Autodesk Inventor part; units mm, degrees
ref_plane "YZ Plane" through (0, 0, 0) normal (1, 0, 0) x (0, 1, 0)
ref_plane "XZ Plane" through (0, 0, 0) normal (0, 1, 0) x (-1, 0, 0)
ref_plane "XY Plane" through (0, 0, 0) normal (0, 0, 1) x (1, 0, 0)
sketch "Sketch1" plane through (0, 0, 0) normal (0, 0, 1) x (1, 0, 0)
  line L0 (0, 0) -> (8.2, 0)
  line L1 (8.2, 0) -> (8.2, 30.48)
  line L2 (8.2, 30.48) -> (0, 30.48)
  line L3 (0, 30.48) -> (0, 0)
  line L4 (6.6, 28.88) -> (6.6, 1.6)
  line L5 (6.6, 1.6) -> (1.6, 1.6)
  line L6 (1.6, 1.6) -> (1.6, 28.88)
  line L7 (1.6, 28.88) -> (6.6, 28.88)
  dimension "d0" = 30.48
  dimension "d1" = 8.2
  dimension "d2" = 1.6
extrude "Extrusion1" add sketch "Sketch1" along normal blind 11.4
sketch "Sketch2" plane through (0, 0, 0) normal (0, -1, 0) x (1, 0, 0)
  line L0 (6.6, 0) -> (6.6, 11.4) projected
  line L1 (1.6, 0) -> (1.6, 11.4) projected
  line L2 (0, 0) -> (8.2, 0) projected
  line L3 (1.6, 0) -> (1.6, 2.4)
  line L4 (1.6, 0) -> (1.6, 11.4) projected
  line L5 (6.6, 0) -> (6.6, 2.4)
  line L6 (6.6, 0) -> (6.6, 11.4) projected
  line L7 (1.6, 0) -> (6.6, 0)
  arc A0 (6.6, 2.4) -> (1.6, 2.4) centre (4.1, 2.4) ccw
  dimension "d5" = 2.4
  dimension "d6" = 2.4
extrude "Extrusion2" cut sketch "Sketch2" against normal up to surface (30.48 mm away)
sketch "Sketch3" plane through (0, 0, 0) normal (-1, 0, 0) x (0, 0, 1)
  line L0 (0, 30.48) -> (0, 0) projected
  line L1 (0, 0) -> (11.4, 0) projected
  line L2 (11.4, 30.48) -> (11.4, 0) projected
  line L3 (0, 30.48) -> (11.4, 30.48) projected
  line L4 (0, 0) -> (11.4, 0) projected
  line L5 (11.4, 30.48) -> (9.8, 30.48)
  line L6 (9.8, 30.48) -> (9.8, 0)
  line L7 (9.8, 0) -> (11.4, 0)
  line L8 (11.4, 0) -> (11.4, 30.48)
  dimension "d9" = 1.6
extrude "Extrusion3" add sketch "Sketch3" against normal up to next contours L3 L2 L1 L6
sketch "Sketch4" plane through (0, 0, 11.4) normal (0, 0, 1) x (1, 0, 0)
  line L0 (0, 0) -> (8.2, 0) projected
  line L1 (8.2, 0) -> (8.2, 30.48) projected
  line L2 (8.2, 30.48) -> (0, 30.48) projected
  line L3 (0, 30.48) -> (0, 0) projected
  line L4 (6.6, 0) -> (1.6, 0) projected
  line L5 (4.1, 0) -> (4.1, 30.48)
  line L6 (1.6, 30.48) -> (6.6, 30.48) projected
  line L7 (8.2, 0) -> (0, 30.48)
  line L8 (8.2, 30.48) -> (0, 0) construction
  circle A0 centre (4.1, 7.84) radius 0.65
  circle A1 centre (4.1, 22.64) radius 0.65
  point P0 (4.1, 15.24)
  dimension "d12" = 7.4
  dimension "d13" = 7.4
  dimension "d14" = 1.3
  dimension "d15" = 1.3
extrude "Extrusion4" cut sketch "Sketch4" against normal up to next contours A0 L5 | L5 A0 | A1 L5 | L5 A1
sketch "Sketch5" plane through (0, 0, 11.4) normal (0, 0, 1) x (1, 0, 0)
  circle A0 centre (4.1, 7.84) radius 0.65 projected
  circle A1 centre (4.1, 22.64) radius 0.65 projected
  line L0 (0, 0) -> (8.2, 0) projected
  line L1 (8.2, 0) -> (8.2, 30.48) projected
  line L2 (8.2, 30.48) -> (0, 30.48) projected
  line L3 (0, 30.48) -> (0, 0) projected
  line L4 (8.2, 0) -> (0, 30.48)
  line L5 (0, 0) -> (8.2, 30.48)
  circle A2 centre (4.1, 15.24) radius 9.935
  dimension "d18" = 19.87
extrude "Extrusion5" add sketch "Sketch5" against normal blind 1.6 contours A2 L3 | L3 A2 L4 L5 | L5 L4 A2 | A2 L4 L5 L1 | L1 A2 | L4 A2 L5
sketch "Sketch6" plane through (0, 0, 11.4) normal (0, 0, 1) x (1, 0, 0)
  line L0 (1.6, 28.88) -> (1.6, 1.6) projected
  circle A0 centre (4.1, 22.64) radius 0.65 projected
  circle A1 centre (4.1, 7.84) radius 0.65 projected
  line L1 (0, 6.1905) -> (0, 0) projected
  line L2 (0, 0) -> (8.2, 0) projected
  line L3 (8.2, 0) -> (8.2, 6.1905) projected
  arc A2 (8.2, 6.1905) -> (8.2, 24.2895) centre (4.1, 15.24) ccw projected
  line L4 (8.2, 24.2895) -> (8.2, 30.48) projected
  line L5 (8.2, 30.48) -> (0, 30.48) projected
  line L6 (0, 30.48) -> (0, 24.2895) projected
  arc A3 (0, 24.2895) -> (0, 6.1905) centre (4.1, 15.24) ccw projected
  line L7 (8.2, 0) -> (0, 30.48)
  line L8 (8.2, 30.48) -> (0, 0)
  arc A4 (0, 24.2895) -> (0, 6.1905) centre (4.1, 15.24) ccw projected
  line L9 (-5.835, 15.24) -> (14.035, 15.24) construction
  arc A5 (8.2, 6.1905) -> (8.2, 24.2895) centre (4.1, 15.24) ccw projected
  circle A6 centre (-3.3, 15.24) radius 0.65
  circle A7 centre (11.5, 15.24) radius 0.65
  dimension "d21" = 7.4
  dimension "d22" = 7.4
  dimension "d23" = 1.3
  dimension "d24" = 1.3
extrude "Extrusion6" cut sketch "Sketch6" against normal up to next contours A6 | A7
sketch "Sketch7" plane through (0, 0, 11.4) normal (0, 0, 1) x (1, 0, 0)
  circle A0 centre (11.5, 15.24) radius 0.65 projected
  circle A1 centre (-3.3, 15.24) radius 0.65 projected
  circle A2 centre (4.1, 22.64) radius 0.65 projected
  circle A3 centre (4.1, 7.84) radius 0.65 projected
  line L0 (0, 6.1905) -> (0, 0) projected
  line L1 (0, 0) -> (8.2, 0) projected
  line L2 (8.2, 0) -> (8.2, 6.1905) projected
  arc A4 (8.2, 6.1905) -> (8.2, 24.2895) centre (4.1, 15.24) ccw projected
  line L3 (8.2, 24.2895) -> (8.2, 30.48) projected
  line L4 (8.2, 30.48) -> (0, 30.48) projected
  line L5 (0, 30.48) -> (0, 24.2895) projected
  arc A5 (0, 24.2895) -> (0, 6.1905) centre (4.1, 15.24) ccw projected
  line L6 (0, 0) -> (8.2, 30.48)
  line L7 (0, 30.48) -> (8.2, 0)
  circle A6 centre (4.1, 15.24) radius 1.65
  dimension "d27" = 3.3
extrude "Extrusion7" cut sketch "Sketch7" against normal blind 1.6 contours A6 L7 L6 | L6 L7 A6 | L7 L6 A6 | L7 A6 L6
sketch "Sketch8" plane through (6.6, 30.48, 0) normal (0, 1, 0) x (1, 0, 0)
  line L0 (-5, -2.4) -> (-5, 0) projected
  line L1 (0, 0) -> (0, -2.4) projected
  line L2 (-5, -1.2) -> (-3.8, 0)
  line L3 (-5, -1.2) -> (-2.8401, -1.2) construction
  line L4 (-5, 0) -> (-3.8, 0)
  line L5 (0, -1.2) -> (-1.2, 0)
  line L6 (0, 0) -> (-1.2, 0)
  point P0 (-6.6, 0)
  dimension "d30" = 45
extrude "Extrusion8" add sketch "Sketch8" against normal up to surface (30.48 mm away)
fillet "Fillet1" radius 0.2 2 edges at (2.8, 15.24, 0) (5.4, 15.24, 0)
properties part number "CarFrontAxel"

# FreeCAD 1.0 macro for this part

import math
import FreeCAD as App
import Part
import Sketcher
from FreeCAD import Vector


def edges_at(feature, points):
    """Names of the edges that pass closest to the given points."""
    edges = feature.Shape.Edges
    near = lambda p: min(range(len(edges)), key=lambda i: edges[i].distToShape(Part.Vertex(*p))[0])
    return sorted({f"Edge{near(p) + 1}" for p in points})

doc = App.newDocument("Part")
body = doc.addObject("PartDesign::Body", "Body")

# Sketch on XY plane
sketch1 = body.newObject("Sketcher::SketchObject", "Sketch")
sketch1.AttachmentSupport = (doc.getObject("XY_Plane"), [""])
sketch1.MapMode = "FlatFace"
sketch1.addGeometry(Part.LineSegment(Vector(0, 30, 0), Vector(0, 0, 0)), False)
sketch1.addGeometry(Part.LineSegment(Vector(0, 0, 0), Vector(8, 0, 0)), False)
sketch1.addGeometry(Part.LineSegment(Vector(8, 0, 0), Vector(8, 30, 0)), False)
sketch1.addGeometry(Part.LineSegment(Vector(8, 30, 0), Vector(0, 30, 0)), False)
sketch1.addGeometry(Part.LineSegment(Vector(2, 29, 0), Vector(7, 29, 0)), False)
sketch1.addGeometry(Part.LineSegment(Vector(7, 29, 0), Vector(7, 2, 0)), False)
sketch1.addGeometry(Part.LineSegment(Vector(7, 2, 0), Vector(2, 2, 0)), False)
sketch1.addGeometry(Part.LineSegment(Vector(2, 2, 0), Vector(2, 29, 0)), False)
sketch1.addConstraint(Sketcher.Constraint("Coincident", 0, 2, 1, 1))
sketch1.addConstraint(Sketcher.Constraint("Coincident", 1, 2, 2, 1))
sketch1.addConstraint(Sketcher.Constraint("Coincident", 2, 2, 3, 1))
sketch1.addConstraint(Sketcher.Constraint("Coincident", 3, 2, 0, 1))
sketch1.addConstraint(Sketcher.Constraint("Coincident", 4, 2, 5, 1))
sketch1.addConstraint(Sketcher.Constraint("Coincident", 5, 2, 6, 1))
sketch1.addConstraint(Sketcher.Constraint("Coincident", 6, 2, 7, 1))
sketch1.addConstraint(Sketcher.Constraint("Coincident", 7, 2, 4, 1))
sketch1.addConstraint(Sketcher.Constraint("Vertical", 0))
sketch1.addConstraint(Sketcher.Constraint("Horizontal", 1))
sketch1.addConstraint(Sketcher.Constraint("Vertical", 2))
sketch1.addConstraint(Sketcher.Constraint("Horizontal", 3))
sketch1.addConstraint(Sketcher.Constraint("Horizontal", 4))
sketch1.addConstraint(Sketcher.Constraint("Vertical", 5))
sketch1.addConstraint(Sketcher.Constraint("Horizontal", 6))
sketch1.addConstraint(Sketcher.Constraint("Vertical", 7))
sketch1.addConstraint(Sketcher.Constraint("Coincident", 0, 2, -1, 1))
sketch1.addConstraint(Sketcher.Constraint("DistanceX", 1, 1, 1, 2, 8.2))
sketch1.addConstraint(Sketcher.Constraint("DistanceY", 0, 2, 0, 1, 30.48))
sketch1.addConstraint(Sketcher.Constraint("DistanceY", -1, 1, 5, 2, 1.6))
sketch1.addConstraint(Sketcher.Constraint("DistanceX", -1, 1, 6, 2, 1.6))
sketch1.addConstraint(Sketcher.Constraint("DistanceX", 4, 2, 2, 2, 1.6))
sketch1.addConstraint(Sketcher.Constraint("DistanceY", 4, 2, 2, 2, 1.6))
pad1 = body.newObject("PartDesign::Pad", "Pad")
pad1.Profile = sketch1
pad1.Length = 11.4

# Sketch on XZ plane
sketch2 = body.newObject("Sketcher::SketchObject", "Sketch001")
sketch2.AttachmentSupport = (doc.getObject("XZ_Plane"), [""])
sketch2.MapMode = "FlatFace"
sketch2.addGeometry(Part.LineSegment(Vector(1.6, 0, 0), Vector(6.6, 0, 0)), False)
sketch2.addGeometry(Part.LineSegment(Vector(6.6, 0, 0), Vector(6.6, 2.4, 0)), False)
sketch2.addGeometry(Part.ArcOfCircle(Part.Circle(Vector(4.1, 2.4, 0), Vector(0, 0, 1), 2.5), math.radians(0), math.radians(180)), False)
sketch2.addGeometry(Part.LineSegment(Vector(1.6, 2.4, 0), Vector(1.6, 0, 0)), False)
sketch2.addConstraint(Sketcher.Constraint("Coincident", 0, 2, 1, 1))
sketch2.addConstraint(Sketcher.Constraint("Tangent", 1, 2, 2, 1))
sketch2.addConstraint(Sketcher.Constraint("Tangent", 2, 2, 3, 1))
sketch2.addConstraint(Sketcher.Constraint("Coincident", 3, 2, 0, 1))
sketch2.addConstraint(Sketcher.Constraint("Horizontal", 0))
sketch2.addConstraint(Sketcher.Constraint("Vertical", 1))
sketch2.addConstraint(Sketcher.Constraint("Vertical", 3))
sketch2.addConstraint(Sketcher.Constraint("PointOnObject", 0, 2, -1))
sketch2.addConstraint(Sketcher.Constraint("DistanceY", 1, 1, 1, 2, 2.4))
sketch2.addConstraint(Sketcher.Constraint("Radius", 2, 2.5))
sketch2.addConstraint(Sketcher.Constraint("DistanceX", -1, 1, 2, 3, 4.1))
pocket1 = body.newObject("PartDesign::Pocket", "Pocket")
pocket1.Profile = sketch2
pocket1.Length = 30.48

# Sketch on YZ plane
sketch3 = body.newObject("Sketcher::SketchObject", "Sketch002")
sketch3.AttachmentSupport = (doc.getObject("YZ_Plane"), [""])
sketch3.MapMode = "FlatFace"
sketch3.addGeometry(Part.LineSegment(Vector(30.5, 11.4, 0), Vector(30.5, 9.8, 0)), False)
sketch3.addGeometry(Part.LineSegment(Vector(30.5, 9.8, 0), Vector(0, 9.8, 0)), False)
sketch3.addGeometry(Part.LineSegment(Vector(0, 9.8, 0), Vector(0, 11.4, 0)), False)
sketch3.addGeometry(Part.LineSegment(Vector(0, 11.4, 0), Vector(30.5, 11.4, 0)), False)
sketch3.addConstraint(Sketcher.Constraint("Coincident", 0, 2, 1, 1))
sketch3.addConstraint(Sketcher.Constraint("Coincident", 1, 2, 2, 1))
sketch3.addConstraint(Sketcher.Constraint("Coincident", 2, 2, 3, 1))
sketch3.addConstraint(Sketcher.Constraint("Coincident", 3, 2, 0, 1))
sketch3.addConstraint(Sketcher.Constraint("Vertical", 0))
sketch3.addConstraint(Sketcher.Constraint("Horizontal", 1))
sketch3.addConstraint(Sketcher.Constraint("Vertical", 2))
sketch3.addConstraint(Sketcher.Constraint("Horizontal", 3))
sketch3.addConstraint(Sketcher.Constraint("PointOnObject", 1, 2, -2))
sketch3.addConstraint(Sketcher.Constraint("DistanceY", 0, 2, 0, 1, 1.6))
sketch3.addConstraint(Sketcher.Constraint("DistanceX", 1, 2, 1, 1, 30.48))
sketch3.addConstraint(Sketcher.Constraint("DistanceY", -1, 1, 0, 2, 9.8))
pad2 = body.newObject("PartDesign::Pad", "Pad001")
pad2.Profile = sketch3
pad2.Length = 6.6

# Sketch on XY plane
sketch4 = body.newObject("Sketcher::SketchObject", "Sketch003")
sketch4.AttachmentSupport = (doc.getObject("XY_Plane"), [""])
sketch4.MapMode = "FlatFace"
sketch4.AttachmentOffset = App.Placement(Vector(0, 0, 11.4), App.Rotation())
sketch4.addGeometry(Part.Circle(Vector(4.1, 7.8, 0), Vector(0, 0, 1), 0.7), False)
sketch4.addGeometry(Part.Circle(Vector(4.1, 22.6, 0), Vector(0, 0, 1), 0.7), False)
sketch4.addConstraint(Sketcher.Constraint("Equal", 0, 1))
sketch4.addConstraint(Sketcher.Constraint("Vertical", 0, 3, 1, 3))
sketch4.addConstraint(Sketcher.Constraint("Diameter", 0, 1.3))
sketch4.addConstraint(Sketcher.Constraint("DistanceX", -1, 1, 0, 3, 4.1))
sketch4.addConstraint(Sketcher.Constraint("DistanceY", 0, 3, 1, 3, 14.8))
sketch4.addConstraint(Sketcher.Constraint("DistanceY", -1, 1, 0, 3, 7.84))
pocket2 = body.newObject("PartDesign::Pocket", "Pocket001")
pocket2.Profile = sketch4
pocket2.Type = "UpToFirst"

# Sketch on XY plane
sketch5 = body.newObject("Sketcher::SketchObject", "Sketch004")
sketch5.AttachmentSupport = (doc.getObject("XY_Plane"), [""])
sketch5.MapMode = "FlatFace"
sketch5.AttachmentOffset = App.Placement(Vector(0, 0, 11.4), App.Rotation())
sketch5.addGeometry(Part.Circle(Vector(4.1, 15.2, 0), Vector(0, 0, 1), 9.9), False)
sketch5.addGeometry(Part.Circle(Vector(4.1, 22.6, 0), Vector(0, 0, 1), 0.7), False)
sketch5.addGeometry(Part.Circle(Vector(4.1, 7.8, 0), Vector(0, 0, 1), 0.7), False)
sketch5.addConstraint(Sketcher.Constraint("Equal", 1, 2))
sketch5.addConstraint(Sketcher.Constraint("Vertical", 0, 3, 1, 3))
sketch5.addConstraint(Sketcher.Constraint("Vertical", 1, 3, 2, 3))
sketch5.addConstraint(Sketcher.Constraint("Diameter", 0, 19.87))
sketch5.addConstraint(Sketcher.Constraint("Diameter", 1, 1.3))
sketch5.addConstraint(Sketcher.Constraint("DistanceX", -1, 1, 0, 3, 4.1))
sketch5.addConstraint(Sketcher.Constraint("DistanceY", 0, 3, 1, 3, 7.4))
sketch5.addConstraint(Sketcher.Constraint("DistanceY", 2, 3, 0, 3, 7.4))
sketch5.addConstraint(Sketcher.Constraint("DistanceY", -1, 1, 0, 3, 15.24))
pad3 = body.newObject("PartDesign::Pad", "Pad002")
pad3.Profile = sketch5
pad3.Length = 1.6
pad3.Reversed = True

# Sketch on XY plane
sketch6 = body.newObject("Sketcher::SketchObject", "Sketch005")
sketch6.AttachmentSupport = (doc.getObject("XY_Plane"), [""])
sketch6.MapMode = "FlatFace"
sketch6.AttachmentOffset = App.Placement(Vector(0, 0, 11.4), App.Rotation())
sketch6.addGeometry(Part.Circle(Vector(-3.3, 15.2, 0), Vector(0, 0, 1), 0.7), False)
sketch6.addGeometry(Part.Circle(Vector(11.5, 15.2, 0), Vector(0, 0, 1), 0.7), False)
sketch6.addConstraint(Sketcher.Constraint("Equal", 0, 1))
sketch6.addConstraint(Sketcher.Constraint("Horizontal", 0, 3, 1, 3))
sketch6.addConstraint(Sketcher.Constraint("Diameter", 0, 1.3))
sketch6.addConstraint(Sketcher.Constraint("DistanceX", 0, 3, -1, 1, 3.3))
sketch6.addConstraint(Sketcher.Constraint("DistanceX", -1, 1, 1, 3, 11.5))
sketch6.addConstraint(Sketcher.Constraint("DistanceY", -1, 1, 0, 3, 15.24))
pocket3 = body.newObject("PartDesign::Pocket", "Pocket002")
pocket3.Profile = sketch6
pocket3.Type = "UpToFirst"

# Sketch on XY plane
sketch7 = body.newObject("Sketcher::SketchObject", "Sketch006")
sketch7.AttachmentSupport = (doc.getObject("XY_Plane"), [""])
sketch7.MapMode = "FlatFace"
sketch7.AttachmentOffset = App.Placement(Vector(0, 0, 11.4), App.Rotation())
sketch7.addGeometry(Part.Circle(Vector(4.1, 15.2, 0), Vector(0, 0, 1), 1.6), False)
sketch7.addConstraint(Sketcher.Constraint("Diameter", 0, 3.3))
sketch7.addConstraint(Sketcher.Constraint("DistanceX", -1, 1, 0, 3, 4.1))
sketch7.addConstraint(Sketcher.Constraint("DistanceY", -1, 1, 0, 3, 15.24))
pocket4 = body.newObject("PartDesign::Pocket", "Pocket003")
pocket4.Profile = sketch7
pocket4.Length = 1.6

# Sketch on XZ plane
sketch8 = body.newObject("Sketcher::SketchObject", "Sketch007")
sketch8.AttachmentSupport = (doc.getObject("XZ_Plane"), [""])
sketch8.MapMode = "FlatFace"
sketch8.AttachmentOffset = App.Placement(Vector(0, 0, -30.48), App.Rotation())
sketch8.addGeometry(Part.LineSegment(Vector(1.6, 0, 0), Vector(1.6, 1.2, 0)), False)
sketch8.addGeometry(Part.LineSegment(Vector(1.6, 1.2, 0), Vector(2.8, 0, 0)), False)
sketch8.addGeometry(Part.LineSegment(Vector(2.8, 0, 0), Vector(1.6, 0, 0)), False)
sketch8.addGeometry(Part.LineSegment(Vector(6.6, 1.2, 0), Vector(6.6, 0, 0)), False)
sketch8.addGeometry(Part.LineSegment(Vector(6.6, 0, 0), Vector(5.4, 0, 0)), False)
sketch8.addGeometry(Part.LineSegment(Vector(5.4, 0, 0), Vector(6.6, 1.2, 0)), False)
sketch8.addConstraint(Sketcher.Constraint("Coincident", 0, 2, 1, 1))
sketch8.addConstraint(Sketcher.Constraint("Coincident", 1, 2, 2, 1))
sketch8.addConstraint(Sketcher.Constraint("Coincident", 2, 2, 0, 1))
sketch8.addConstraint(Sketcher.Constraint("Coincident", 3, 2, 4, 1))
sketch8.addConstraint(Sketcher.Constraint("Coincident", 4, 2, 5, 1))
sketch8.addConstraint(Sketcher.Constraint("Coincident", 5, 2, 3, 1))
sketch8.addConstraint(Sketcher.Constraint("Vertical", 0))
sketch8.addConstraint(Sketcher.Constraint("Horizontal", 2))
sketch8.addConstraint(Sketcher.Constraint("Vertical", 3))
sketch8.addConstraint(Sketcher.Constraint("Horizontal", 4))
sketch8.addConstraint(Sketcher.Constraint("PointOnObject", 1, 2, -1))
sketch8.addConstraint(Sketcher.Constraint("PointOnObject", 3, 2, -1))
sketch8.addConstraint(Sketcher.Constraint("Perpendicular", 1, 5))
sketch8.addConstraint(Sketcher.Constraint("Horizontal", 0, 2, 5, 2))
sketch8.addConstraint(Sketcher.Constraint("Equal", 2, 4))
sketch8.addConstraint(Sketcher.Constraint("DistanceX", 2, 2, 2, 1, 1.2))
sketch8.addConstraint(Sketcher.Constraint("DistanceX", 2, 2, 3, 2, 5.0))
sketch8.addConstraint(Sketcher.Constraint("DistanceX", -1, 1, 0, 2, 1.6))
pad4 = body.newObject("PartDesign::Pad", "Pad003")
pad4.Profile = sketch8
pad4.Length = 30.48
doc.recompute()

fillet = body.newObject("PartDesign::Fillet", "Fillet")
fillet.Base = (pad4, edges_at(pad4, [(2.8, 15.24, 0), (5.4, 15.24, 0)]))
fillet.Radius = 0.2

doc.recompute()
